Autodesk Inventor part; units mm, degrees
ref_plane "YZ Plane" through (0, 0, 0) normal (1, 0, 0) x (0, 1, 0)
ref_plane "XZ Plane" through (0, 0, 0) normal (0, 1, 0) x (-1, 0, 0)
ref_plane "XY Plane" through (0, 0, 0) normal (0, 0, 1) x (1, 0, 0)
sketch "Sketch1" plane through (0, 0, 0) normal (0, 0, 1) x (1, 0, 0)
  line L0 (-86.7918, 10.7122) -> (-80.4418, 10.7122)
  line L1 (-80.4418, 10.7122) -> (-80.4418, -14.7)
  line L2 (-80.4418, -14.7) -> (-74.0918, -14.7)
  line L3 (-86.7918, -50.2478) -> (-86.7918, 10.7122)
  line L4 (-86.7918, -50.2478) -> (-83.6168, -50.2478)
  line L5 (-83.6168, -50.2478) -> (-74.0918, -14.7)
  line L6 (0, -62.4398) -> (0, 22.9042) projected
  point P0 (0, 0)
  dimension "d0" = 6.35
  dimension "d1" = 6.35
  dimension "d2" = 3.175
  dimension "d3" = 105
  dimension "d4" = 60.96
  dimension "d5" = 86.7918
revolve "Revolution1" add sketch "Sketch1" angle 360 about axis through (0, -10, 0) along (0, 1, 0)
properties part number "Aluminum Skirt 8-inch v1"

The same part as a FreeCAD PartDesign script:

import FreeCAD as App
import Part
import Sketcher
from FreeCAD import Vector
Q = App.Units.Quantity


def add_polygon(sketch, points):
    """Adds a closed chain of lines whose ends are joined by coincident constraints."""
    first, n = sketch.GeometryCount, len(points)
    for a, b in zip(points, points[1:] + points[:1]):
        sketch.addGeometry(Part.LineSegment(App.Vector(*a, 0), App.Vector(*b, 0)), False)
    for i in range(n):
        sketch.addConstraint(Sketcher.Constraint("Coincident", first + i, 2, first + (i + 1) % n, 1))

doc = App.newDocument("Part")
body = doc.addObject("PartDesign::Body", "Body")

sketch1 = doc.addObject("Sketcher::SketchObject", "Sketch")
body.addObject(sketch1)
sketch1.AttachmentSupport = (doc.XY_Plane, [""])
sketch1.MapMode = "FlatFace"
add_polygon(sketch1, [(-80.4418, 10.7122), (-86.7918, 10.7122), (-86.7918, -50.2478), (-83.6168, -50.2478), (-74.0918, -14.7), (-80.4418, -14.7)])
sketch1.addConstraint(Sketcher.Constraint("Horizontal", 0))
sketch1.addConstraint(Sketcher.Constraint("Vertical", 1))
sketch1.addConstraint(Sketcher.Constraint("Horizontal", 2))
sketch1.addConstraint(Sketcher.Constraint("Horizontal", 4))
sketch1.addConstraint(Sketcher.Constraint("Vertical", 5))
sketch1.addConstraint(Sketcher.Constraint("Equal", 0, 4))
sketch1.addConstraint(Sketcher.Constraint("DistanceY", 1, 2, 1, 1, Q("2.4 in")))
sketch1.addConstraint(Sketcher.Constraint("DistanceX", 0, 2, 0, 1, Q("0.25 in")))
sketch1.addConstraint(Sketcher.Constraint("DistanceX", 2, 1, 2, 2, Q("0.125 in")))
sketch1.addConstraint(Sketcher.Constraint("DistanceX", 0, 2, -1, 1, Q("3.417 in")))
sketch1.addConstraint(Sketcher.Constraint("Angle", 3, Q("75 deg")))
sketch1.addConstraint(Sketcher.Constraint("DistanceY", -1, 1, 0, 2, 10.7122))
revolution = doc.addObject("PartDesign::Revolution", "Revolution")
body.addObject(revolution)
revolution.Profile = sketch1
revolution.ReferenceAxis = (sketch1, ["V_Axis"])
revolution.Angle = 360

doc.recompute()
